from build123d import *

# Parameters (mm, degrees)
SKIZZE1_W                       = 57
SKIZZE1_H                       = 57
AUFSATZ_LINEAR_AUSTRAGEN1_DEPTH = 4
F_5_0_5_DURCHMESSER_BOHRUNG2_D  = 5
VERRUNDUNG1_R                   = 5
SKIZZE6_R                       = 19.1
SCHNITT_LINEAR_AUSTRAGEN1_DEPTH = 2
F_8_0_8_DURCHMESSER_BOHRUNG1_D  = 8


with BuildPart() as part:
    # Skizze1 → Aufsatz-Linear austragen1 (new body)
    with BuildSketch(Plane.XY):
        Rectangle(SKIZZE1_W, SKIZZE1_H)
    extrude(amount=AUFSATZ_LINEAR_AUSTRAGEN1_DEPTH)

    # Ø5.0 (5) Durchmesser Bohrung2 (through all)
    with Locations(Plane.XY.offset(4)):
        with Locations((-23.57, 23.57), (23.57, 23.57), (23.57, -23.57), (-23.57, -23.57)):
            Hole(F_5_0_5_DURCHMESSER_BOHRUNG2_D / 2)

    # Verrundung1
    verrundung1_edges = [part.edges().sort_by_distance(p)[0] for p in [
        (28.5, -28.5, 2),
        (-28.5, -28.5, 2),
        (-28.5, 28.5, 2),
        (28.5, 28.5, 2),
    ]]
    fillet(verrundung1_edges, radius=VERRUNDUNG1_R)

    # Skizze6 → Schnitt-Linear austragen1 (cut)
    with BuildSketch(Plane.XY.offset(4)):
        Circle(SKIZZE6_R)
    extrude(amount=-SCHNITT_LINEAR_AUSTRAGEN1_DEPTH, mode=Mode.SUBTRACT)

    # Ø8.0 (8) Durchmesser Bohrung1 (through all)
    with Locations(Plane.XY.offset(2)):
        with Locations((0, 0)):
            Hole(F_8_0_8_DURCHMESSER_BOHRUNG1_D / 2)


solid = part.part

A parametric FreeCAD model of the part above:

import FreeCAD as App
import Part
import Sketcher

V = App.Vector
Q = App.Units.Quantity


def edges_at(feature, points):
    """Names of the edges that pass closest to the given points."""
    edges = feature.Shape.Edges
    near = lambda p: min(range(len(edges)), key=lambda i: edges[i].distToShape(Part.Vertex(*p))[0])
    return sorted({f"Edge{near(p) + 1}" for p in points})


def add_polygon(sketch, points):
    """Adds a closed chain of lines whose ends are joined by coincident constraints."""
    first, n = sketch.GeometryCount, len(points)
    for a, b in zip(points, points[1:] + points[:1]):
        sketch.addGeometry(Part.LineSegment(App.Vector(*a, 0), App.Vector(*b, 0)), False)
    for i in range(n):
        sketch.addConstraint(Sketcher.Constraint("Coincident", first + i, 2, first + (i + 1) % n, 1))

doc = App.newDocument("Part")
params = doc.addObject("Spreadsheet::Sheet", "Params")
for row, (alias, value) in enumerate([
    ("sketch1_width", "57 mm"),
    ("pad1_length", "4 mm"),
    ("sketch2_diameter", "5 mm"),
    ("hole_diameter", "5 mm"),
    ("fillet_radius", "5 mm"),
    ("sketch3_diameter", "38.2 mm"),
    ("pocket1_length", "2 mm"),
    ("sketch4_diameter", "8 mm"),
    ("hole2_diameter", "8 mm"),
], start=1):
    params.set(f"A{row}", alias)
    params.set(f"B{row}", "=" + value)
    params.setAlias(f"B{row}", alias)

body = doc.addObject("PartDesign::Body", "Body")

# Sketch on XY plane
sketch1 = doc.addObject("Sketcher::SketchObject", "Sketch")
body.addObject(sketch1)
sketch1.AttachmentSupport = (doc.XY_Plane, [""])
sketch1.MapMode = "FlatFace"
add_polygon(sketch1, [(-28.5, 28.5), (-28.5, -28.5), (28.5, -28.5), (28.5, 28.5)])  # lines 0-3
sketch1.addConstraint([
    Sketcher.Constraint("Vertical", 0),
    Sketcher.Constraint("Horizontal", 1),
    Sketcher.Constraint("Vertical", 2),
    Sketcher.Constraint("Horizontal", 3),
    Sketcher.Constraint("Symmetric", 0, 2, 2, 2, -1, 1),
    Sketcher.Constraint("Equal", 3, 0),
    Sketcher.Constraint("DistanceX", 1, 1, 1, 2, Q("57 mm")),
])
sketch1.setExpression("Constraints[10]", "Params.sketch1_width")
pad1 = doc.addObject("PartDesign::Pad", "Pad")
body.addObject(pad1)
pad1.Profile = sketch1
pad1.setExpression("Length", "Params.pad1_length")

# Sketch on XY plane
sketch2 = doc.addObject("Sketcher::SketchObject", "Sketch001")
body.addObject(sketch2)
sketch2.AttachmentSupport = (doc.XY_Plane, [""])
sketch2.MapMode = "FlatFace"
sketch2.AttachmentOffset = App.Placement(V(0, 0, 4), App.Rotation())
sketch2.addGeometry([
    Part.Circle(V(-23.57, 23.57, 0), V(0, 0, 1), 2.5),
    Part.Circle(V(23.57, 23.57, 0), V(0, 0, 1), 2.5),
    Part.Circle(V(23.57, -23.57, 0), V(0, 0, 1), 2.5),
    Part.Circle(V(-23.57, -23.57, 0), V(0, 0, 1), 2.5),
], False)
sketch2.addConstraint([
    Sketcher.Constraint("Equal", 0, 1),
    Sketcher.Constraint("Equal", 1, 2),
    Sketcher.Constraint("Equal", 2, 3),
    Sketcher.Constraint("Symmetric", 0, 3, 2, 3, -1, 1),
    Sketcher.Constraint("Symmetric", 1, 3, 3, 3, -1, 1),
    Sketcher.Constraint("Symmetric", 0, 3, 1, 3, -2),
    Sketcher.Constraint("Diameter", 0, Q("5 mm")),
    Sketcher.Constraint("DistanceX", 0, 3, -1, 1, Q("23.57 mm")),
    Sketcher.Constraint("DistanceY", -1, 1, 0, 3, Q("23.57 mm")),
])
sketch2.setExpression("Constraints[6]", "Params.sketch2_diameter")
doc.recompute()
hole = doc.addObject("PartDesign::Hole", "Hole")
body.addObject(hole)
hole.Profile = sketch2
hole.ThreadType = "None"
hole.setExpression("Diameter", "Params.hole_diameter")
hole.DepthType = "ThroughAll"
doc.recompute()

fillet = doc.addObject("PartDesign::Fillet", "Fillet")
body.addObject(fillet)
fillet.Base = (hole, edges_at(hole, [
    (28.5, -28.5, 2),
    (-28.5, -28.5, 2),
    (-28.5, 28.5, 2),
    (28.5, 28.5, 2),
]))
fillet.setExpression("Radius", "Params.fillet_radius")

# Sketch on XY plane
sketch3 = doc.addObject("Sketcher::SketchObject", "Sketch002")
body.addObject(sketch3)
sketch3.AttachmentSupport = (doc.XY_Plane, [""])
sketch3.MapMode = "FlatFace"
sketch3.AttachmentOffset = App.Placement(V(0, 0, 4), App.Rotation())
sketch3.addGeometry(Part.Circle(V(0, 0, 0), V(0, 0, 1), 19.1), False)
sketch3.addConstraint([
    Sketcher.Constraint("Coincident", 0, 3, -1, 1),
    Sketcher.Constraint("Diameter", 0, Q("38.2 mm")),
])
sketch3.setExpression("Constraints[1]", "Params.sketch3_diameter")
pocket1 = doc.addObject("PartDesign::Pocket", "Pocket")
body.addObject(pocket1)
pocket1.Profile = sketch3
pocket1.setExpression("Length", "Params.pocket1_length")

# Sketch on XY plane
sketch4 = doc.addObject("Sketcher::SketchObject", "Sketch003")
body.addObject(sketch4)
sketch4.AttachmentSupport = (doc.XY_Plane, [""])
sketch4.MapMode = "FlatFace"
sketch4.AttachmentOffset = App.Placement(V(0, 0, 2), App.Rotation())
sketch4.addGeometry(Part.Circle(V(0, 0, 0), V(0, 0, 1), 4), False)
sketch4.addConstraint([
    Sketcher.Constraint("Coincident", 0, 3, -1, 1),
    Sketcher.Constraint("Diameter", 0, Q("8 mm")),
])
sketch4.setExpression("Constraints[1]", "Params.sketch4_diameter")
doc.recompute()
hole2 = doc.addObject("PartDesign::Hole", "Hole001")
body.addObject(hole2)
hole2.Profile = sketch4
hole2.ThreadType = "None"
hole2.setExpression("Diameter", "Params.hole2_diameter")
hole2.DepthType = "ThroughAll"

doc.recompute()
